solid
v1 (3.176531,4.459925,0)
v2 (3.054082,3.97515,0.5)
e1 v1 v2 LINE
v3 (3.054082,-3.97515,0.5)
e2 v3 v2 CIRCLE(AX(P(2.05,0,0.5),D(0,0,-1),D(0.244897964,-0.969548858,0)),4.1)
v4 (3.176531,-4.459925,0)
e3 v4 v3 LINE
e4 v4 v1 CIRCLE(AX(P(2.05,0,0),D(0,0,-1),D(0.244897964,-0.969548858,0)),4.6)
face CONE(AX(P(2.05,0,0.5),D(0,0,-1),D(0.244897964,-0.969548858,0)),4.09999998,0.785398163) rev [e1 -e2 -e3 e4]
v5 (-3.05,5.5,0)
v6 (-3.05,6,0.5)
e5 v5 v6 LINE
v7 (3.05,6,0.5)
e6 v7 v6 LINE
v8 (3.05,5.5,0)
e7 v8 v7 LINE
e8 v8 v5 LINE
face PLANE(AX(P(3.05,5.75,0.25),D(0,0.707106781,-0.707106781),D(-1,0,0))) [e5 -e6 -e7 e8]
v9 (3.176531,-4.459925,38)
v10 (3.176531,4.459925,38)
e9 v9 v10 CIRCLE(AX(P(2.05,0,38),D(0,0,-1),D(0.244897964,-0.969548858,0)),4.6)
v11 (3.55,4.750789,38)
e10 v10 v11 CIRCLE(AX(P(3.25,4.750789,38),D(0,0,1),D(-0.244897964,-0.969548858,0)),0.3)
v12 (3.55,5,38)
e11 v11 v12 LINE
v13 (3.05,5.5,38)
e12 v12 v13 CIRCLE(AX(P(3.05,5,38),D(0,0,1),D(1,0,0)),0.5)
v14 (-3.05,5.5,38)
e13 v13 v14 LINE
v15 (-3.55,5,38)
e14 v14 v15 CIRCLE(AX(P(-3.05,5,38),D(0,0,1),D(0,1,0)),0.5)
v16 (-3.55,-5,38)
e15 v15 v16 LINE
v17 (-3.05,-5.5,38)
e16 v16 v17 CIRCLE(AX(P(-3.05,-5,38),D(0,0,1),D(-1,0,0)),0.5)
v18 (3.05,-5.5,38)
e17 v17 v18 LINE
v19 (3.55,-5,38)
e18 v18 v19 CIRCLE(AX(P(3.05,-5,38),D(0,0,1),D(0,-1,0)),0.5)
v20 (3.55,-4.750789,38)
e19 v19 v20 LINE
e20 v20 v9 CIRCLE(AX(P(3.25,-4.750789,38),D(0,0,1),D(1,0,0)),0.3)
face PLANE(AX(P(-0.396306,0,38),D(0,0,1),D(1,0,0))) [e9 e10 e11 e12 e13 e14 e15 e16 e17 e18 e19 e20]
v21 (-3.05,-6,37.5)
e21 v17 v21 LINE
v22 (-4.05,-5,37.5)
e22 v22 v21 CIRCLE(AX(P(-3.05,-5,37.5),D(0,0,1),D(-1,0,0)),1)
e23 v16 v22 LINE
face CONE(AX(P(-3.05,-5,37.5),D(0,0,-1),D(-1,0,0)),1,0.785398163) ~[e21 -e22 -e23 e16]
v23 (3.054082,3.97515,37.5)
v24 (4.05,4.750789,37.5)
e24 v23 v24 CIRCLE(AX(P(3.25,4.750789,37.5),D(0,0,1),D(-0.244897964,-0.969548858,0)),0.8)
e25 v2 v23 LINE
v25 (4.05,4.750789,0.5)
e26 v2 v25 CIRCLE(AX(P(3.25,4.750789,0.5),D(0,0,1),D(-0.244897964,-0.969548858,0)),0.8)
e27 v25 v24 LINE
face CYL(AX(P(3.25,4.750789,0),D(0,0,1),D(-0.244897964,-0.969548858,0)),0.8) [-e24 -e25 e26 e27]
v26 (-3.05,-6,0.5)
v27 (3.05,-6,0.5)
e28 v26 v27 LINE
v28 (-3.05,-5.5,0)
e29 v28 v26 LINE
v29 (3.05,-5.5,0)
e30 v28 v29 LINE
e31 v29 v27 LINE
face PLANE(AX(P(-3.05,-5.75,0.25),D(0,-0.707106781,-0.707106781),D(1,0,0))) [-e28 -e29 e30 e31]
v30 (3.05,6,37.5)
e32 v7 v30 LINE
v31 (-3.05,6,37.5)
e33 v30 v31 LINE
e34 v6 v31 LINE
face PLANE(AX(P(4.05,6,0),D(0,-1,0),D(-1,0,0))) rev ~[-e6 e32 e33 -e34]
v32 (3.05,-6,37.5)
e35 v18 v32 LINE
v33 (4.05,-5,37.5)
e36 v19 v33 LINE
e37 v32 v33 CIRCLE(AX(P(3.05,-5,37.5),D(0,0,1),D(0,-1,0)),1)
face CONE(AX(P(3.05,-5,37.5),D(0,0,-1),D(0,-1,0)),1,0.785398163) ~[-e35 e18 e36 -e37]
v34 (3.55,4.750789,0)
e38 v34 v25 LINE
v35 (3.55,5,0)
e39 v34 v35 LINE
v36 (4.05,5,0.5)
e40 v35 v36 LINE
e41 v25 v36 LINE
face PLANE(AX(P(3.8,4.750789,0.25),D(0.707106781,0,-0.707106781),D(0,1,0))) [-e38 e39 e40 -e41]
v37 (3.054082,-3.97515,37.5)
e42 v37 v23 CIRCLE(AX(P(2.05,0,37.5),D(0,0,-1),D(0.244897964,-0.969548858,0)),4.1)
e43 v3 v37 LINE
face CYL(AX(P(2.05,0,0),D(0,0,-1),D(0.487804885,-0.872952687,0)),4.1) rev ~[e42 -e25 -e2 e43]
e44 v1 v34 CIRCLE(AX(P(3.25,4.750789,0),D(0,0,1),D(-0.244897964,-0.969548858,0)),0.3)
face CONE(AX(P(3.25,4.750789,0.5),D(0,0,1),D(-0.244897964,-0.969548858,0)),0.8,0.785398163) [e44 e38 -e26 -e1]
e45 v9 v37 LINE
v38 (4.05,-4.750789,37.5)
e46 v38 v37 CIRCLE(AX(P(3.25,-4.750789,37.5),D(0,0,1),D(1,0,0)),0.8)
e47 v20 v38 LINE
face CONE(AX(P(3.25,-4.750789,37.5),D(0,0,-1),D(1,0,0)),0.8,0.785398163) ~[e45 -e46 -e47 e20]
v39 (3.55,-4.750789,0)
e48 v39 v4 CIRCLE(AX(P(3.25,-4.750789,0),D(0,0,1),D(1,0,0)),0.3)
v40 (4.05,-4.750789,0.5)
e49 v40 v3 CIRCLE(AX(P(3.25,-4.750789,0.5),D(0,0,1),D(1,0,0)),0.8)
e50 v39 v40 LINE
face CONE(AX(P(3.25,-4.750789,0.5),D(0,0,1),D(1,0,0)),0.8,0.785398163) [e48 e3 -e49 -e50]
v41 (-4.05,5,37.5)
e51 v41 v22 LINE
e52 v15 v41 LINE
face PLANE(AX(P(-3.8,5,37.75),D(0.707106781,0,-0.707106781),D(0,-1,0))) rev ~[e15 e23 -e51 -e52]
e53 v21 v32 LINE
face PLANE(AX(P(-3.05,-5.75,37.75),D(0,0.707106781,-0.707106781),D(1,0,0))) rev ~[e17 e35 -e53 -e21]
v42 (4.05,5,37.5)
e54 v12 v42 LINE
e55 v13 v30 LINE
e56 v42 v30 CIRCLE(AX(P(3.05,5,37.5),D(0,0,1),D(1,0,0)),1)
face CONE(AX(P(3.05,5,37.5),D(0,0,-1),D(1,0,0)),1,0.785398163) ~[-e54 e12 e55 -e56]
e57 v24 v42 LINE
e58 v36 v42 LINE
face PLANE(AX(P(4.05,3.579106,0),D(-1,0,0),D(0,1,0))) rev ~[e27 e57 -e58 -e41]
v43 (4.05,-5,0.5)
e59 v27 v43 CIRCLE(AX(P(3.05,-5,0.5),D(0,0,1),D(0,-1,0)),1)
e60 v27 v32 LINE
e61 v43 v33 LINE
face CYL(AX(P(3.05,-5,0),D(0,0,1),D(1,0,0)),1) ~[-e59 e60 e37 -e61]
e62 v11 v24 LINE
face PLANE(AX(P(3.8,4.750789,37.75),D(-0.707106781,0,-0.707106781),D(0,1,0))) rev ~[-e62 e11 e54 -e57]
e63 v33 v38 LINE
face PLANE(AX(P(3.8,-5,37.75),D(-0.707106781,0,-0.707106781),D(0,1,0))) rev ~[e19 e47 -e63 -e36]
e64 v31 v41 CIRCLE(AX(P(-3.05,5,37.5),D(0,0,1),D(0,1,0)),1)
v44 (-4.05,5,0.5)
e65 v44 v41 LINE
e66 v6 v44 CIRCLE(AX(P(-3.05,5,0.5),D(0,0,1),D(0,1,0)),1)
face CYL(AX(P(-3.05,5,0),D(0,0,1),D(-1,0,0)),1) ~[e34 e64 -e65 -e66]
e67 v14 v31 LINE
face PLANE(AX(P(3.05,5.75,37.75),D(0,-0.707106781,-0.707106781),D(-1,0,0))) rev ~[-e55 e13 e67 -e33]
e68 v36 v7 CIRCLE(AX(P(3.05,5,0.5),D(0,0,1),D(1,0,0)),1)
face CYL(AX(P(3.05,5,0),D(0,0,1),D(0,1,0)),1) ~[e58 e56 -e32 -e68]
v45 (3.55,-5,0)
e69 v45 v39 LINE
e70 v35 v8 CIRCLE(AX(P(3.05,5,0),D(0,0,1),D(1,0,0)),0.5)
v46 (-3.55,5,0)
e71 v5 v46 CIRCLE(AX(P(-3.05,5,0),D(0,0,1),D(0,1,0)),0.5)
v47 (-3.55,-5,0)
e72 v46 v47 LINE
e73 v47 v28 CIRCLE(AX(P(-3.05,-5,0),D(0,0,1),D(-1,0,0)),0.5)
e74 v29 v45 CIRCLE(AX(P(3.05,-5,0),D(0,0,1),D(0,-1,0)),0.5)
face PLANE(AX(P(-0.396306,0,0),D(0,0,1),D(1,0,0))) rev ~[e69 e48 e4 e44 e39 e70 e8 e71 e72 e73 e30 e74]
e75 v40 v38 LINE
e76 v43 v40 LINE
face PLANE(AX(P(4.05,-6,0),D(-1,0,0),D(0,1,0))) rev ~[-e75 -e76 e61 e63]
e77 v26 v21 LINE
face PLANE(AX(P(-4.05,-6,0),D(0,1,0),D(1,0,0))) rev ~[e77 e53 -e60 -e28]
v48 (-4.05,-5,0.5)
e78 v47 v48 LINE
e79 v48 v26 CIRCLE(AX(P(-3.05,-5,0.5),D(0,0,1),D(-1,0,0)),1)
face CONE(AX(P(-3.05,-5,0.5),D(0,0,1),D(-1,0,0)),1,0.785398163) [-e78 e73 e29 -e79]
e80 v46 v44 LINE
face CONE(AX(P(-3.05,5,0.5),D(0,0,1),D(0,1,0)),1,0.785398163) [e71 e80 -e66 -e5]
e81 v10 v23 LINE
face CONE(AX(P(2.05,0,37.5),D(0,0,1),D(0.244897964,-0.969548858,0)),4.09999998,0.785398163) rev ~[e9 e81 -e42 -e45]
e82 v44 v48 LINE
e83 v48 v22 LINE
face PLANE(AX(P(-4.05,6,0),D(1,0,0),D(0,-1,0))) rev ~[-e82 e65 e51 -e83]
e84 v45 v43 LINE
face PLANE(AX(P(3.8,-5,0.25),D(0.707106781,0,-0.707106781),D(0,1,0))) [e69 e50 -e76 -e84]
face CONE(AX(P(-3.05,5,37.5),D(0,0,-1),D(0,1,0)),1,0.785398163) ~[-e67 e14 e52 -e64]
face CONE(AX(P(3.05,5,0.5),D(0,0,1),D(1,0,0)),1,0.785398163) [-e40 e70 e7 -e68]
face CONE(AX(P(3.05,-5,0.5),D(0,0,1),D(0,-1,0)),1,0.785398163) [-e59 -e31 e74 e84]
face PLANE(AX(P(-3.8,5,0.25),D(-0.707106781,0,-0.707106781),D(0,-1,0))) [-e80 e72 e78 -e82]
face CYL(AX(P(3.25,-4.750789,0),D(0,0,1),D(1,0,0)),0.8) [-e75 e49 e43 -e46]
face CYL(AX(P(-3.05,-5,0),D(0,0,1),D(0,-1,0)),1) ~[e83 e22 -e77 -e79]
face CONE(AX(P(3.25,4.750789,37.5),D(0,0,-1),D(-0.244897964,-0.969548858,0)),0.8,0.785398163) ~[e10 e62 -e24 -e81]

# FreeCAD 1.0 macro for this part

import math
import FreeCAD as App
import Part
import Sketcher
Q = App.Units.Quantity


def edges_at(feature, points):
    """Names of the edges that pass closest to the given points."""
    edges = feature.Shape.Edges
    near = lambda p: min(range(len(edges)), key=lambda i: edges[i].distToShape(Part.Vertex(*p))[0])
    return sorted({f"Edge{near(p) + 1}" for p in points})

doc = App.newDocument("Part")
body = doc.addObject("PartDesign::Body", "Body")

# Sketch on XY plane
sketch1 = body.newObject("Sketcher::SketchObject", "Sketch")
sketch1.AttachmentSupport = (doc.getObject("XY_Plane"), [""])
sketch1.MapMode = "FlatFace"
sketch1.addGeometry([
    Part.LineSegment(App.Vector(-4.05, -6, 0), App.Vector(4.05, -6, 0)),  # 0
    Part.LineSegment(App.Vector(4.05, -6, 0), App.Vector(4.05, -3.579106, 0)),  # 1
    Part.ArcOfCircle(Part.Circle(App.Vector(2.05, 0, 0), App.Vector(0, 0, 1), 4.1), math.radians(60.803595), math.radians(299.196405)),  # 2
    Part.LineSegment(App.Vector(4.05, 3.579106, 0), App.Vector(4.05, 6, 0)),  # 3
    Part.LineSegment(App.Vector(4.05, 6, 0), App.Vector(-4.05, 6, 0)),  # 4
    Part.LineSegment(App.Vector(-4.05, 6, 0), App.Vector(-4.05, -6, 0)),  # 5
], False)
sketch1.addConstraint([
    Sketcher.Constraint("Coincident", 0, 2, 1, 1),
    Sketcher.Constraint("Coincident", 1, 2, 2, 2),
    Sketcher.Constraint("Coincident", 2, 1, 3, 1),
    Sketcher.Constraint("Coincident", 3, 2, 4, 1),
    Sketcher.Constraint("Coincident", 4, 2, 5, 1),
    Sketcher.Constraint("Coincident", 5, 2, 0, 1),
    Sketcher.Constraint("Horizontal", 0),
    Sketcher.Constraint("Vertical", 1),
    Sketcher.Constraint("Vertical", 3),
    Sketcher.Constraint("Horizontal", 4),
    Sketcher.Constraint("Vertical", 5),
    Sketcher.Constraint("Symmetric", 0, 2, 4, 2, -1, 1),
    Sketcher.Constraint("Symmetric", 1, 2, 2, 1, -1),
    Sketcher.Constraint("Radius", 2, Q("4.1 mm")),
    Sketcher.Constraint("DistanceY", 5, 2, 5, 1, Q("12 mm")),
    Sketcher.Constraint("DistanceX", 0, 1, 0, 2, Q("8.1 mm")),
    Sketcher.Constraint("DistanceX", 2, 3, 0, 2, Q("2 mm")),
])
pad1 = body.newObject("PartDesign::Pad", "Pad")
pad1.Profile = sketch1
pad1.Length = 38
doc.recompute()

fillet = body.newObject("PartDesign::Fillet", "Fillet")
fillet.Base = (pad1, edges_at(pad1, [(4.05, 3.579, 19), (4.05, -3.579, 19)]))
fillet.Radius = 0.8
doc.recompute()

fillet2 = body.newObject("PartDesign::Fillet", "Fillet001")
fillet2.Base = (fillet, edges_at(fillet, [
    (4.05, 6, 19),
    (4.05, -6, 19),
    (-4.05, -6, 19),
    (-4.05, 6, 19),
]))
fillet2.Radius = 1
doc.recompute()

chamfer = body.newObject("PartDesign::Chamfer", "Chamfer")
chamfer.Base = (fillet2, edges_at(fillet2, [(-2.05, 0, 38), (-2.05, 0, 0)]))
chamfer.Size = 0.5

doc.recompute()
